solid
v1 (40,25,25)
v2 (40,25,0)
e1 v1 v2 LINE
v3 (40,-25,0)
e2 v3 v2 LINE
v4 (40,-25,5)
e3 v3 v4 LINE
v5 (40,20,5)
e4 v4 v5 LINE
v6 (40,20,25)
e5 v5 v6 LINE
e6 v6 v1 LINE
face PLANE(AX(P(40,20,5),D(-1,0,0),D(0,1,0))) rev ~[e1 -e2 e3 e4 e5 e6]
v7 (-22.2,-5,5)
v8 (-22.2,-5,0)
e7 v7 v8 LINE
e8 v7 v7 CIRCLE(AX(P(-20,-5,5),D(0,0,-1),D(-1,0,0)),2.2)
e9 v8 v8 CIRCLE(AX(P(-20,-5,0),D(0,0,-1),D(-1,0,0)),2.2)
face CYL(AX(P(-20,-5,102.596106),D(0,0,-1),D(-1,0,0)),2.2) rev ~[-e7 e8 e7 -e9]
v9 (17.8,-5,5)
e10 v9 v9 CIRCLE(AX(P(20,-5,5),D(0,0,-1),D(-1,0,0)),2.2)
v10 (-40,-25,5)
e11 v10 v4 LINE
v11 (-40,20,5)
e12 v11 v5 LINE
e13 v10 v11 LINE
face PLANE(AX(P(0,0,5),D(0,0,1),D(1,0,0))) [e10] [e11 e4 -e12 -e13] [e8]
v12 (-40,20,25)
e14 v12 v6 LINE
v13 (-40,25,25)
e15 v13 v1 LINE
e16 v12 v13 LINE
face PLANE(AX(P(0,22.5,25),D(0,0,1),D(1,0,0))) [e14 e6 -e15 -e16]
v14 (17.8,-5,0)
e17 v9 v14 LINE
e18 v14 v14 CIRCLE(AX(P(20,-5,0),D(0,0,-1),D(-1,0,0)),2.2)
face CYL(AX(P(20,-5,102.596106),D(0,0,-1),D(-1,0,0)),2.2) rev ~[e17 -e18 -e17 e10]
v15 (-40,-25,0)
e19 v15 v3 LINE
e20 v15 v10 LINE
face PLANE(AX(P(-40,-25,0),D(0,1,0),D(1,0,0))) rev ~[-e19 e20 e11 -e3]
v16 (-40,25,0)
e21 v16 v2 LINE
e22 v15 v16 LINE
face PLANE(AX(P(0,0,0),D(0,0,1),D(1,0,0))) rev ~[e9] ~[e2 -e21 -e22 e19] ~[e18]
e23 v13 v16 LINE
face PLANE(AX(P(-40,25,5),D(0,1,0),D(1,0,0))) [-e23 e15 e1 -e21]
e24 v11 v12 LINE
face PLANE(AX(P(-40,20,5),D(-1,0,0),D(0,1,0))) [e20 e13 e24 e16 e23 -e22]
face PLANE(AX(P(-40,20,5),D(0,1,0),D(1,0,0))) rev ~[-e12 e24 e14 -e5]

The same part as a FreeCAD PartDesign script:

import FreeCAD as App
import Part
import Sketcher

doc = App.newDocument("Part")
params = doc.addObject("Spreadsheet::Sheet", "Params")
for row, (alias, value) in enumerate([
    ("sketch1_width", "80 mm"),
    ("sketch1_height", "50 mm"),
    ("pad1_length", "5 mm"),
    ("sketch2_width", "80 mm"),
    ("sketch2_height", "5 mm"),
    ("pad2_length", "20 mm"),
    ("sketch3_diameter", "4.4 mm"),
    ("hole_diameter", "4.4 mm"),
], start=1):
    params.set(f"A{row}", alias)
    params.set(f"B{row}", "=" + value)
    params.setAlias(f"B{row}", alias)

body = doc.addObject("PartDesign::Body", "Body")

# Sketch on XY plane
sketch1 = doc.addObject("Sketcher::SketchObject", "Sketch")
body.addObject(sketch1)
sketch1.AttachmentSupport = (doc.XY_Plane, [""])
sketch1.MapMode = "FlatFace"
sketch1.addGeometry(Part.LineSegment(App.Vector(-40, 25, 0), App.Vector(-40, -25, 0)), False)
sketch1.addGeometry(Part.LineSegment(App.Vector(-40, -25, 0), App.Vector(40, -25, 0)), False)
sketch1.addGeometry(Part.LineSegment(App.Vector(40, -25, 0), App.Vector(40, 25, 0)), False)
sketch1.addGeometry(Part.LineSegment(App.Vector(40, 25, 0), App.Vector(-40, 25, 0)), False)
sketch1.addConstraint(Sketcher.Constraint("Coincident", 0, 2, 1, 1))
sketch1.addConstraint(Sketcher.Constraint("Coincident", 1, 2, 2, 1))
sketch1.addConstraint(Sketcher.Constraint("Coincident", 2, 2, 3, 1))
sketch1.addConstraint(Sketcher.Constraint("Coincident", 3, 2, 0, 1))
sketch1.addConstraint(Sketcher.Constraint("Vertical", 0))
sketch1.addConstraint(Sketcher.Constraint("Horizontal", 1))
sketch1.addConstraint(Sketcher.Constraint("Vertical", 2))
sketch1.addConstraint(Sketcher.Constraint("Horizontal", 3))
sketch1.addConstraint(Sketcher.Constraint("Symmetric", 0, 2, 2, 2, -1, 1))
sketch1.addConstraint(Sketcher.Constraint("DistanceX", 1, 1, 1, 2, 80.0))
sketch1.addConstraint(Sketcher.Constraint("DistanceY", 0, 2, 0, 1, 50.0))
sketch1.setExpression("Constraints[9]", "Params.sketch1_width")
sketch1.setExpression("Constraints[10]", "Params.sketch1_height")
pad1 = doc.addObject("PartDesign::Pad", "Pad")
body.addObject(pad1)
pad1.Profile = sketch1
pad1.setExpression("Length", "Params.pad1_length")

# Sketch on XY plane
sketch2 = doc.addObject("Sketcher::SketchObject", "Sketch001")
body.addObject(sketch2)
sketch2.AttachmentSupport = (doc.XY_Plane, [""])
sketch2.MapMode = "FlatFace"
sketch2.AttachmentOffset = App.Placement(App.Vector(0, 0, 5), App.Rotation())
sketch2.addGeometry(Part.LineSegment(App.Vector(-40, 25, 0), App.Vector(-40, 20, 0)), False)
sketch2.addGeometry(Part.LineSegment(App.Vector(-40, 20, 0), App.Vector(40, 20, 0)), False)
sketch2.addGeometry(Part.LineSegment(App.Vector(40, 20, 0), App.Vector(40, 25, 0)), False)
sketch2.addGeometry(Part.LineSegment(App.Vector(40, 25, 0), App.Vector(-40, 25, 0)), False)
sketch2.addConstraint(Sketcher.Constraint("Coincident", 0, 2, 1, 1))
sketch2.addConstraint(Sketcher.Constraint("Coincident", 1, 2, 2, 1))
sketch2.addConstraint(Sketcher.Constraint("Coincident", 2, 2, 3, 1))
sketch2.addConstraint(Sketcher.Constraint("Coincident", 3, 2, 0, 1))
sketch2.addConstraint(Sketcher.Constraint("Vertical", 0))
sketch2.addConstraint(Sketcher.Constraint("Horizontal", 1))
sketch2.addConstraint(Sketcher.Constraint("Vertical", 2))
sketch2.addConstraint(Sketcher.Constraint("Horizontal", 3))
sketch2.addConstraint(Sketcher.Constraint("DistanceX", 1, 1, 1, 2, 80.0))
sketch2.addConstraint(Sketcher.Constraint("DistanceY", 0, 2, 0, 1, 5.0))
sketch2.addConstraint(Sketcher.Constraint("DistanceX", 0, 2, -1, 1, 40.0))
sketch2.addConstraint(Sketcher.Constraint("DistanceY", -1, 1, 0, 2, 20.0))
sketch2.setExpression("Constraints[8]", "Params.sketch2_width")
sketch2.setExpression("Constraints[9]", "Params.sketch2_height")
pad2 = doc.addObject("PartDesign::Pad", "Pad001")
body.addObject(pad2)
pad2.Profile = sketch2
pad2.setExpression("Length", "Params.pad2_length")

# Sketch on XY plane
sketch3 = doc.addObject("Sketcher::SketchObject", "Sketch002")
body.addObject(sketch3)
sketch3.AttachmentSupport = (doc.XY_Plane, [""])
sketch3.MapMode = "FlatFace"
sketch3.AttachmentOffset = App.Placement(App.Vector(0, 0, 5), App.Rotation())
sketch3.addGeometry(Part.Circle(App.Vector(-20, -5, 0), App.Vector(0, 0, 1), 2.2), False)
sketch3.addGeometry(Part.Circle(App.Vector(20, -5, 0), App.Vector(0, 0, 1), 2.2), False)
sketch3.addConstraint(Sketcher.Constraint("Equal", 0, 1))
sketch3.addConstraint(Sketcher.Constraint("Symmetric", 0, 3, 1, 3, -2))
sketch3.addConstraint(Sketcher.Constraint("Diameter", 0, 4.4))
sketch3.addConstraint(Sketcher.Constraint("DistanceX", 0, 3, -1, 1, 20.0))
sketch3.addConstraint(Sketcher.Constraint("DistanceY", 0, 3, -1, 1, 5.0))
sketch3.setExpression("Constraints[2]", "Params.sketch3_diameter")
doc.recompute()
hole = doc.addObject("PartDesign::Hole", "Hole")
body.addObject(hole)
hole.Profile = sketch3
hole.ThreadType = "None"
hole.setExpression("Diameter", "Params.hole_diameter")
hole.DepthType = "ThroughAll"

doc.recompute()
